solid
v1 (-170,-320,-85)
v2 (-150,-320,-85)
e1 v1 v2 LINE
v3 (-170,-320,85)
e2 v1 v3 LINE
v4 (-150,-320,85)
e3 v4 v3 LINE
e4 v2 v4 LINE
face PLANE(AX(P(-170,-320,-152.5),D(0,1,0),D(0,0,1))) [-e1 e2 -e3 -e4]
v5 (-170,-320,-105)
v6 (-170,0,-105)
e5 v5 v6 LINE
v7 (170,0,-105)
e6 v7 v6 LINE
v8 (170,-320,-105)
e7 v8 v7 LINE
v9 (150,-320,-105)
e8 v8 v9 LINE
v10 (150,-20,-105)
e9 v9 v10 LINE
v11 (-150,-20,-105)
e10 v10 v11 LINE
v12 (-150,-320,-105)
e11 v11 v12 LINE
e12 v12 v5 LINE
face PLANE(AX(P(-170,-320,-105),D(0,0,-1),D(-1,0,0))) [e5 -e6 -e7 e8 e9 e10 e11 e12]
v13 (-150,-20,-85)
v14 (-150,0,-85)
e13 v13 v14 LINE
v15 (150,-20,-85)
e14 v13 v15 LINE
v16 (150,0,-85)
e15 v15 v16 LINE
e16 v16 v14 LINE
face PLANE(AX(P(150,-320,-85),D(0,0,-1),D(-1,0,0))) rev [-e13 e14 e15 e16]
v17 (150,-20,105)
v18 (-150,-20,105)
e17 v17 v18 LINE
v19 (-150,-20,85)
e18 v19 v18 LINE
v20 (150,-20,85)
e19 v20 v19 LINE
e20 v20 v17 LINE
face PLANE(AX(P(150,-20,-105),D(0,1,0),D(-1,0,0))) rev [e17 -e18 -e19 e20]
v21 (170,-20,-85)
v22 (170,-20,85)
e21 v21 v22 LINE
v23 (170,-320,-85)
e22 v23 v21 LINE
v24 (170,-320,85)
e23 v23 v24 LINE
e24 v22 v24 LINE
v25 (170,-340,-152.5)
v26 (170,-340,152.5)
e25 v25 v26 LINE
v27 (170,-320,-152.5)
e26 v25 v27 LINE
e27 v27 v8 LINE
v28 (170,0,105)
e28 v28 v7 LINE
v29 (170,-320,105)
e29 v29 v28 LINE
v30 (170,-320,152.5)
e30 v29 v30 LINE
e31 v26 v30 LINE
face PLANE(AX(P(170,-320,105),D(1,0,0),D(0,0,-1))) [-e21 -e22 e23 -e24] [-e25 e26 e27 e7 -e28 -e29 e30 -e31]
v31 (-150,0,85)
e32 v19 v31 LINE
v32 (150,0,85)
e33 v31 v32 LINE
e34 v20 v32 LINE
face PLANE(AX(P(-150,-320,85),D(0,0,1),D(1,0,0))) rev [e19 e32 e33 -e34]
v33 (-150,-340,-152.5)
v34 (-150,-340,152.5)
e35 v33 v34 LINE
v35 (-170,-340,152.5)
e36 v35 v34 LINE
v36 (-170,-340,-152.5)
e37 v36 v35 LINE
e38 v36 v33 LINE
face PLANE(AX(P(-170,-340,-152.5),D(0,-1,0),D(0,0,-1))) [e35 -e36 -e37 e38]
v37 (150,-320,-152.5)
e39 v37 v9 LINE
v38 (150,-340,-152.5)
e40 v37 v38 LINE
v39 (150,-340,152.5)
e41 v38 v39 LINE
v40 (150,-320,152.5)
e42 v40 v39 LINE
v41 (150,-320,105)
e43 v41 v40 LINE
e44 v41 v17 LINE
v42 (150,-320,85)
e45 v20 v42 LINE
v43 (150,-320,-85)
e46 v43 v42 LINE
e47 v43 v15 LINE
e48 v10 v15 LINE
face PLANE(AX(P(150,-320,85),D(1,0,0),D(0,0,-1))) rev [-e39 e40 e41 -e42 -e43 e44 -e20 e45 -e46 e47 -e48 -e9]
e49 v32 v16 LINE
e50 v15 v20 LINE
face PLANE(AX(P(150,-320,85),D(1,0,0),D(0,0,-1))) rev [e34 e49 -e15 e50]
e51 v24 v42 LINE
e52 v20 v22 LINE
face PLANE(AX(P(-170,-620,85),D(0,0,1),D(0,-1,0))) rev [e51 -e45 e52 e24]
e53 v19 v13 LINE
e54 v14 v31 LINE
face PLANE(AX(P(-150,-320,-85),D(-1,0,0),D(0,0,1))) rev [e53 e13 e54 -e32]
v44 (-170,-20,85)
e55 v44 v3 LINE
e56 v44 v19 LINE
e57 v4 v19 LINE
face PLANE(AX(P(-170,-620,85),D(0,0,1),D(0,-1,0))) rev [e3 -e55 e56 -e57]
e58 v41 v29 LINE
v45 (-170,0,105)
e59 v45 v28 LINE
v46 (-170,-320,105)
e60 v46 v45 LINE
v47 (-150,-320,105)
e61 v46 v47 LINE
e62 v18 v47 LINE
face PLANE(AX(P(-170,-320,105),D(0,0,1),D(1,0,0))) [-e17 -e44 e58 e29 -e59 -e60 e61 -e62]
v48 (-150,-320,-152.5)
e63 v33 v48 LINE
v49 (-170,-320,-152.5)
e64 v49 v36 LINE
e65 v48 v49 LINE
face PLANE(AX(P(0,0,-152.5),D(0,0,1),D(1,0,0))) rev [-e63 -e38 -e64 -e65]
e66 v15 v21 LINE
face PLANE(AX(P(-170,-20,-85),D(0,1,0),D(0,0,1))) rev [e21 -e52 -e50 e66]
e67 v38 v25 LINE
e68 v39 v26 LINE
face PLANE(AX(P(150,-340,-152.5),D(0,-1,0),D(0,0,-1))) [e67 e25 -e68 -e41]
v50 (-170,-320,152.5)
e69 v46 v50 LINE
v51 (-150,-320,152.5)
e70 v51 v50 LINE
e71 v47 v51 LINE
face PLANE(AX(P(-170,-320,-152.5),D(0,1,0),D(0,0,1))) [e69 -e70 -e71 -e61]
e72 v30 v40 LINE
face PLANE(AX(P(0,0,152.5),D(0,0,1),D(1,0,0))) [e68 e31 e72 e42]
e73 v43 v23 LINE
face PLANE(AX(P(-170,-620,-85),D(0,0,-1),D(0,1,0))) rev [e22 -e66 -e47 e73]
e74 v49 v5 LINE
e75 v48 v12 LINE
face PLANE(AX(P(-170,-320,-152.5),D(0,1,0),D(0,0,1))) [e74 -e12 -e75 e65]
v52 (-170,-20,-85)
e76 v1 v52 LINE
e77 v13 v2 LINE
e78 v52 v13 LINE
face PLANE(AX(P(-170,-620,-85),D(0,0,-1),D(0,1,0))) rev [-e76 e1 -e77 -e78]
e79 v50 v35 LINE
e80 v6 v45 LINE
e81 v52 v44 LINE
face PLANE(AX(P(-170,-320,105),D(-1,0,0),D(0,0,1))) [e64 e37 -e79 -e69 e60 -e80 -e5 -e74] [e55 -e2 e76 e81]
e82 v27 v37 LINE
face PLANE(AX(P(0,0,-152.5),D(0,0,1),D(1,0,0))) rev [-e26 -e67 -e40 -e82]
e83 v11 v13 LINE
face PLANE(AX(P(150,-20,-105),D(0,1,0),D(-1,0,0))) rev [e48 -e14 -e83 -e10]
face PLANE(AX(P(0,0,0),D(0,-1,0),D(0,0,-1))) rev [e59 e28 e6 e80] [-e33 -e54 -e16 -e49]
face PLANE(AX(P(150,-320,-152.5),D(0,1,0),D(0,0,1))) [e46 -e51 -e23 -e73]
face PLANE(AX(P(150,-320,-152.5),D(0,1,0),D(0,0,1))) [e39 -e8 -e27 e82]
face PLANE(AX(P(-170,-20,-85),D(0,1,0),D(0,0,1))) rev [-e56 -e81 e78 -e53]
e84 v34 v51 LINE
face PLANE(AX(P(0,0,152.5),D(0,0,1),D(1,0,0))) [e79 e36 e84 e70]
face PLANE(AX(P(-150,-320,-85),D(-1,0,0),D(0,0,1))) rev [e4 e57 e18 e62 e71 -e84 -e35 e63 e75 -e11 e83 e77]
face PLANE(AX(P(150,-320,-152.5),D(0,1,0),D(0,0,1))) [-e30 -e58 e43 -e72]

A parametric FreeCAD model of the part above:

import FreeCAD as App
import Part
import Sketcher
Q = App.Units.Quantity


def add_polygon(sketch, points):
    """Adds a closed chain of lines whose ends are joined by coincident constraints."""
    first, n = sketch.GeometryCount, len(points)
    for a, b in zip(points, points[1:] + points[:1]):
        sketch.addGeometry(Part.LineSegment(App.Vector(*a, 0), App.Vector(*b, 0)), False)
    for i in range(n):
        sketch.addConstraint(Sketcher.Constraint("Coincident", first + i, 2, first + (i + 1) % n, 1))

doc = App.newDocument("Part")
body = doc.addObject("PartDesign::Body", "Body")

sketch1 = body.newObject("Sketcher::SketchObject", "Sketch")
sketch1.AttachmentSupport = (doc.getObject("XZ_Plane"), [""])
sketch1.MapMode = "FlatFace"
add_polygon(sketch1, [(-170, -105), (-170, 105), (170, 105), (170, -105)])
sketch1.addConstraint([
    Sketcher.Constraint("Vertical", 0),
    Sketcher.Constraint("Horizontal", 1),
    Sketcher.Constraint("Vertical", 2),
    Sketcher.Constraint("Horizontal", 3),
    Sketcher.Constraint("Symmetric", 0, 2, 2, 2, -1, 1),
    Sketcher.Constraint("DistanceX", 1, 1, 1, 2, Q("340 mm")),
    Sketcher.Constraint("DistanceY", 0, 1, 0, 2, Q("210 mm")),
])
pad1 = body.newObject("PartDesign::Pad", "Pad")
pad1.Profile = sketch1
pad1.Length = 320

sketch2 = body.newObject("Sketcher::SketchObject", "Sketch001")
sketch2.AttachmentSupport = (doc.getObject("XZ_Plane"), [""])
sketch2.MapMode = "FlatFace"
add_polygon(sketch2, [(-150, -85), (-150, 85), (150, 85), (150, -85)])
sketch2.addConstraint([
    Sketcher.Constraint("Vertical", 0),
    Sketcher.Constraint("Horizontal", 1),
    Sketcher.Constraint("Vertical", 2),
    Sketcher.Constraint("Horizontal", 3),
    Sketcher.Constraint("Symmetric", 0, 2, 2, 2, -1, 1),
    Sketcher.Constraint("DistanceX", 1, 1, 1, 2, Q("300 mm")),
    Sketcher.Constraint("DistanceY", 0, 1, 0, 2, Q("170 mm")),
])
pocket1 = body.newObject("PartDesign::Pocket", "Pocket")
pocket1.Profile = sketch2
pocket1.Type = "ThroughAll"
pocket1.Reversed = True

sketch3 = body.newObject("Sketcher::SketchObject", "Sketch002")
sketch3.AttachmentSupport = (doc.getObject("XY_Plane"), [""])
sketch3.MapMode = "FlatFace"
sketch3.AttachmentOffset = App.Placement(App.Vector(0, 0, 105), App.Rotation())
add_polygon(sketch3, [(-150, -20), (-150, -620), (150, -620), (150, -20)])
sketch3.addConstraint([
    Sketcher.Constraint("Vertical", 0),
    Sketcher.Constraint("Horizontal", 1),
    Sketcher.Constraint("Vertical", 2),
    Sketcher.Constraint("Horizontal", 3),
    Sketcher.Constraint("DistanceX", 1, 1, 1, 2, Q("300 mm")),
    Sketcher.Constraint("DistanceY", 0, 2, 0, 1, Q("600 mm")),
    Sketcher.Constraint("DistanceX", 0, 2, -1, 1, Q("150 mm")),
    Sketcher.Constraint("DistanceY", 0, 2, -1, 1, Q("620 mm")),
])
pocket2 = body.newObject("PartDesign::Pocket", "Pocket001")
pocket2.Profile = sketch3
pocket2.Type = "ThroughAll"

sketch4 = body.newObject("Sketcher::SketchObject", "Sketch003")
sketch4.AttachmentSupport = (doc.getObject("YZ_Plane"), [""])
sketch4.MapMode = "FlatFace"
sketch4.AttachmentOffset = App.Placement(App.Vector(0, 0, 170), App.Rotation())
add_polygon(sketch4, [(-20, 85), (-620, 85), (-620, -85), (-20, -85)])
sketch4.addConstraint([
    Sketcher.Constraint("Horizontal", 0),
    Sketcher.Constraint("Vertical", 1),
    Sketcher.Constraint("Horizontal", 2),
    Sketcher.Constraint("Vertical", 3),
    Sketcher.Constraint("DistanceX", 0, 2, 0, 1, Q("600 mm")),
    Sketcher.Constraint("DistanceY", 1, 2, 1, 1, Q("170 mm")),
    Sketcher.Constraint("DistanceX", 0, 2, -1, 1, Q("620 mm")),
    Sketcher.Constraint("DistanceY", -1, 1, 0, 2, Q("85 mm")),
])
pocket3 = body.newObject("PartDesign::Pocket", "Pocket002")
pocket3.Profile = sketch4
pocket3.Type = "ThroughAll"

sketch5 = body.newObject("Sketcher::SketchObject", "Sketch004")
sketch5.AttachmentSupport = (doc.getObject("XY_Plane"), [""])
sketch5.MapMode = "FlatFace"
add_polygon(sketch5, [(-170, -320), (-170, -340), (-150, -340), (-150, -320)])
add_polygon(sketch5, [(150, -320), (150, -340), (190, -340), (190, -320)])
sketch5.addConstraint([
    Sketcher.Constraint("Vertical", 0),
    Sketcher.Constraint("Horizontal", 1),
    Sketcher.Constraint("Vertical", 2),
    Sketcher.Constraint("Horizontal", 3),
    Sketcher.Constraint("Vertical", 4),
    Sketcher.Constraint("Horizontal", 5),
    Sketcher.Constraint("Vertical", 6),
    Sketcher.Constraint("Horizontal", 7),
    Sketcher.Constraint("Symmetric", 1, 2, 4, 2, -2),
    Sketcher.Constraint("Horizontal", 3, 2, 6, 2),
    Sketcher.Constraint("Equal", 3, 0),
    Sketcher.Constraint("DistanceX", 1, 1, 1, 2, Q("20 mm")),
    Sketcher.Constraint("DistanceX", 5, 1, 5, 2, Q("40 mm")),
    Sketcher.Constraint("DistanceX", 0, 2, -1, 1, Q("170 mm")),
    Sketcher.Constraint("DistanceY", 0, 2, -1, 1, Q("340 mm")),
])
pad2 = body.newObject("PartDesign::Pad", "Pad001")
pad2.Profile = sketch5
pad2.Type = "TwoLengths"
pad2.Length = 152.5
pad2.Length2 = 152.5

sketch6 = body.newObject("Sketcher::SketchObject", "Sketch005")
sketch6.AttachmentSupport = (doc.getObject("XZ_Plane"), [""])
sketch6.MapMode = "FlatFace"
sketch6.AttachmentOffset = App.Placement(App.Vector(0, 0, 320), App.Rotation())
add_polygon(sketch6, [(170, -152), (170, 152), (190, 152), (190, -152)])
sketch6.addConstraint([
    Sketcher.Constraint("Vertical", 0),
    Sketcher.Constraint("Horizontal", 1),
    Sketcher.Constraint("Vertical", 2),
    Sketcher.Constraint("Horizontal", 3),
    Sketcher.Constraint("DistanceX", 1, 1, 1, 2, Q("20 mm")),
    Sketcher.Constraint("DistanceY", 0, 1, 0, 2, Q("305 mm")),
    Sketcher.Constraint("DistanceX", -1, 1, 0, 2, Q("170 mm")),
    Sketcher.Constraint("DistanceY", -1, 1, 0, 2, Q("152.5 mm")),
])
pocket4 = body.newObject("PartDesign::Pocket", "Pocket003")
pocket4.Profile = sketch6
pocket4.Type = "ThroughAll"
pocket4.Reversed = True

doc.recompute()
